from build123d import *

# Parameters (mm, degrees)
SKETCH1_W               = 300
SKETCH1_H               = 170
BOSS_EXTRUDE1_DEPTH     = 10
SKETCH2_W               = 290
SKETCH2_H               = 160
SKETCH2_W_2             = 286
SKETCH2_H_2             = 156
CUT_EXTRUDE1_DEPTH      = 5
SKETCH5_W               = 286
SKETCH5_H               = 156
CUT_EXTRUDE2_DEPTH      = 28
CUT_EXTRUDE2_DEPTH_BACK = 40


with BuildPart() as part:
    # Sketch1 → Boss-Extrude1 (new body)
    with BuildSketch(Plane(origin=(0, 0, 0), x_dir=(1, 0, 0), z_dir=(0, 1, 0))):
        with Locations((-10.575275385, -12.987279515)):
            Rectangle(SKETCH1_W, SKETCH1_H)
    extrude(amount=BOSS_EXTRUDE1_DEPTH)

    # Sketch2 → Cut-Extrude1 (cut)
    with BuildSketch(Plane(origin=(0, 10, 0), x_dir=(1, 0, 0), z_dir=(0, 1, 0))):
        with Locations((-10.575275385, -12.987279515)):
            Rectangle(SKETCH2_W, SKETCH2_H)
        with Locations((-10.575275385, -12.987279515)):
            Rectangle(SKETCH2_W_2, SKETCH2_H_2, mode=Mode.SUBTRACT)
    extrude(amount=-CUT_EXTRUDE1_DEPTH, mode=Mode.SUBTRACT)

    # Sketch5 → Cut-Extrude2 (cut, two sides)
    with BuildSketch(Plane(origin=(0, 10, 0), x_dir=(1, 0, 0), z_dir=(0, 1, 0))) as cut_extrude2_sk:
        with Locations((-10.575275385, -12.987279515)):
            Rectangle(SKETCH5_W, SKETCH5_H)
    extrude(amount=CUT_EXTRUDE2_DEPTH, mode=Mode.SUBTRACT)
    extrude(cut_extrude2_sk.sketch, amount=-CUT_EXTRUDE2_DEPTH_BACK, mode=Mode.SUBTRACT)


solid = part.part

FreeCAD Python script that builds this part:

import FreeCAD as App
import Part
import Sketcher

doc = App.newDocument("Part")
body = doc.addObject("PartDesign::Body", "Body")

sketch1 = doc.addObject("Sketcher::SketchObject", "Sketch")
body.addObject(sketch1)
sketch1.AttachmentSupport = (doc.XZ_Plane, [""])
sketch1.MapMode = "FlatFace"
sketch1.addGeometry([
    Part.LineSegment(App.Vector(-161, -72, 0), App.Vector(-161, 98, 0)),
    Part.LineSegment(App.Vector(-161, 98, 0), App.Vector(139, 98, 0)),
    Part.LineSegment(App.Vector(139, 98, 0), App.Vector(139, -72, 0)),
    Part.LineSegment(App.Vector(139, -72, 0), App.Vector(-161, -72, 0)),
], False)
sketch1.addConstraint([
    Sketcher.Constraint("Coincident", 0, 2, 1, 1),
    Sketcher.Constraint("Coincident", 1, 2, 2, 1),
    Sketcher.Constraint("Coincident", 2, 2, 3, 1),
    Sketcher.Constraint("Coincident", 3, 2, 0, 1),
    Sketcher.Constraint("Vertical", 0),
    Sketcher.Constraint("Horizontal", 1),
    Sketcher.Constraint("Vertical", 2),
    Sketcher.Constraint("Horizontal", 3),
    Sketcher.Constraint("DistanceX", 1, 1, 1, 2, 300.0),
    Sketcher.Constraint("DistanceY", 0, 1, 0, 2, 170.0),
    Sketcher.Constraint("DistanceY", -1, 1, 0, 2, 97.98728),
    Sketcher.Constraint("DistanceX", 0, 2, -1, 1, 160.575275),
])
pad1 = doc.addObject("PartDesign::Pad", "Pad")
body.addObject(pad1)
pad1.Profile = sketch1
pad1.Length = 10
pad1.Reversed = True

sketch2 = doc.addObject("Sketcher::SketchObject", "Sketch001")
body.addObject(sketch2)
sketch2.AttachmentSupport = (doc.XZ_Plane, [""])
sketch2.MapMode = "FlatFace"
sketch2.AttachmentOffset = App.Placement(App.Vector(0, 0, -10), App.Rotation())
sketch2.addGeometry([
    Part.LineSegment(App.Vector(-156, -67, 0), App.Vector(-156, 93, 0)),
    Part.LineSegment(App.Vector(-156, 93, 0), App.Vector(134, 93, 0)),
    Part.LineSegment(App.Vector(134, 93, 0), App.Vector(134, -67, 0)),
    Part.LineSegment(App.Vector(134, -67, 0), App.Vector(-156, -67, 0)),
    Part.LineSegment(App.Vector(132, 91, 0), App.Vector(-154, 91, 0)),
    Part.LineSegment(App.Vector(-154, 91, 0), App.Vector(-154, -65, 0)),
    Part.LineSegment(App.Vector(-154, -65, 0), App.Vector(132, -65, 0)),
    Part.LineSegment(App.Vector(132, -65, 0), App.Vector(132, 91, 0)),
], False)
sketch2.addConstraint([
    Sketcher.Constraint("Coincident", 0, 2, 1, 1),
    Sketcher.Constraint("Coincident", 1, 2, 2, 1),
    Sketcher.Constraint("Coincident", 2, 2, 3, 1),
    Sketcher.Constraint("Coincident", 3, 2, 0, 1),
    Sketcher.Constraint("Coincident", 4, 2, 5, 1),
    Sketcher.Constraint("Coincident", 5, 2, 6, 1),
    Sketcher.Constraint("Coincident", 6, 2, 7, 1),
    Sketcher.Constraint("Coincident", 7, 2, 4, 1),
    Sketcher.Constraint("Vertical", 0),
    Sketcher.Constraint("Horizontal", 1),
    Sketcher.Constraint("Vertical", 2),
    Sketcher.Constraint("Horizontal", 3),
    Sketcher.Constraint("Horizontal", 4),
    Sketcher.Constraint("Vertical", 5),
    Sketcher.Constraint("Horizontal", 6),
    Sketcher.Constraint("Vertical", 7),
    Sketcher.Constraint("DistanceX", 1, 1, 1, 2, 290.0),
    Sketcher.Constraint("DistanceX", 4, 2, 4, 1, 286.0),
    Sketcher.Constraint("DistanceY", 0, 1, 0, 2, 160.0),
    Sketcher.Constraint("DistanceY", 5, 2, 5, 1, 156.0),
    Sketcher.Constraint("DistanceX", 0, 2, 4, 2, 2.0),
    Sketcher.Constraint("DistanceY", 4, 2, 0, 2, 2.0),
    Sketcher.Constraint("DistanceY", -1, 1, 0, 2, 92.98728),
    Sketcher.Constraint("DistanceX", 0, 2, -1, 1, 155.575275),
])
pocket1 = doc.addObject("PartDesign::Pocket", "Pocket")
body.addObject(pocket1)
pocket1.Profile = sketch2
pocket1.Length = 5
pocket1.Reversed = True

sketch3 = doc.addObject("Sketcher::SketchObject", "Sketch002")
body.addObject(sketch3)
sketch3.AttachmentSupport = (doc.XZ_Plane, [""])
sketch3.MapMode = "FlatFace"
sketch3.AttachmentOffset = App.Placement(App.Vector(0, 0, -10), App.Rotation())
sketch3.addGeometry([
    Part.LineSegment(App.Vector(-154, -65, 0), App.Vector(-154, 91, 0)),
    Part.LineSegment(App.Vector(-154, 91, 0), App.Vector(132, 91, 0)),
    Part.LineSegment(App.Vector(132, 91, 0), App.Vector(132, -65, 0)),
    Part.LineSegment(App.Vector(132, -65, 0), App.Vector(-154, -65, 0)),
], False)
sketch3.addConstraint([
    Sketcher.Constraint("Coincident", 0, 2, 1, 1),
    Sketcher.Constraint("Coincident", 1, 2, 2, 1),
    Sketcher.Constraint("Coincident", 2, 2, 3, 1),
    Sketcher.Constraint("Coincident", 3, 2, 0, 1),
    Sketcher.Constraint("Vertical", 0),
    Sketcher.Constraint("Horizontal", 1),
    Sketcher.Constraint("Vertical", 2),
    Sketcher.Constraint("Horizontal", 3),
    Sketcher.Constraint("DistanceX", 1, 1, 1, 2, 286.0),
    Sketcher.Constraint("DistanceY", 0, 1, 0, 2, 156.0),
    Sketcher.Constraint("DistanceY", -1, 1, 0, 2, 90.98728),
    Sketcher.Constraint("DistanceX", 0, 2, -1, 1, 153.575275),
])
pocket2 = doc.addObject("PartDesign::Pocket", "Pocket001")
body.addObject(pocket2)
pocket2.Profile = sketch3
pocket2.Type = "ThroughAll"
pocket2.Midplane = True

doc.recompute()
